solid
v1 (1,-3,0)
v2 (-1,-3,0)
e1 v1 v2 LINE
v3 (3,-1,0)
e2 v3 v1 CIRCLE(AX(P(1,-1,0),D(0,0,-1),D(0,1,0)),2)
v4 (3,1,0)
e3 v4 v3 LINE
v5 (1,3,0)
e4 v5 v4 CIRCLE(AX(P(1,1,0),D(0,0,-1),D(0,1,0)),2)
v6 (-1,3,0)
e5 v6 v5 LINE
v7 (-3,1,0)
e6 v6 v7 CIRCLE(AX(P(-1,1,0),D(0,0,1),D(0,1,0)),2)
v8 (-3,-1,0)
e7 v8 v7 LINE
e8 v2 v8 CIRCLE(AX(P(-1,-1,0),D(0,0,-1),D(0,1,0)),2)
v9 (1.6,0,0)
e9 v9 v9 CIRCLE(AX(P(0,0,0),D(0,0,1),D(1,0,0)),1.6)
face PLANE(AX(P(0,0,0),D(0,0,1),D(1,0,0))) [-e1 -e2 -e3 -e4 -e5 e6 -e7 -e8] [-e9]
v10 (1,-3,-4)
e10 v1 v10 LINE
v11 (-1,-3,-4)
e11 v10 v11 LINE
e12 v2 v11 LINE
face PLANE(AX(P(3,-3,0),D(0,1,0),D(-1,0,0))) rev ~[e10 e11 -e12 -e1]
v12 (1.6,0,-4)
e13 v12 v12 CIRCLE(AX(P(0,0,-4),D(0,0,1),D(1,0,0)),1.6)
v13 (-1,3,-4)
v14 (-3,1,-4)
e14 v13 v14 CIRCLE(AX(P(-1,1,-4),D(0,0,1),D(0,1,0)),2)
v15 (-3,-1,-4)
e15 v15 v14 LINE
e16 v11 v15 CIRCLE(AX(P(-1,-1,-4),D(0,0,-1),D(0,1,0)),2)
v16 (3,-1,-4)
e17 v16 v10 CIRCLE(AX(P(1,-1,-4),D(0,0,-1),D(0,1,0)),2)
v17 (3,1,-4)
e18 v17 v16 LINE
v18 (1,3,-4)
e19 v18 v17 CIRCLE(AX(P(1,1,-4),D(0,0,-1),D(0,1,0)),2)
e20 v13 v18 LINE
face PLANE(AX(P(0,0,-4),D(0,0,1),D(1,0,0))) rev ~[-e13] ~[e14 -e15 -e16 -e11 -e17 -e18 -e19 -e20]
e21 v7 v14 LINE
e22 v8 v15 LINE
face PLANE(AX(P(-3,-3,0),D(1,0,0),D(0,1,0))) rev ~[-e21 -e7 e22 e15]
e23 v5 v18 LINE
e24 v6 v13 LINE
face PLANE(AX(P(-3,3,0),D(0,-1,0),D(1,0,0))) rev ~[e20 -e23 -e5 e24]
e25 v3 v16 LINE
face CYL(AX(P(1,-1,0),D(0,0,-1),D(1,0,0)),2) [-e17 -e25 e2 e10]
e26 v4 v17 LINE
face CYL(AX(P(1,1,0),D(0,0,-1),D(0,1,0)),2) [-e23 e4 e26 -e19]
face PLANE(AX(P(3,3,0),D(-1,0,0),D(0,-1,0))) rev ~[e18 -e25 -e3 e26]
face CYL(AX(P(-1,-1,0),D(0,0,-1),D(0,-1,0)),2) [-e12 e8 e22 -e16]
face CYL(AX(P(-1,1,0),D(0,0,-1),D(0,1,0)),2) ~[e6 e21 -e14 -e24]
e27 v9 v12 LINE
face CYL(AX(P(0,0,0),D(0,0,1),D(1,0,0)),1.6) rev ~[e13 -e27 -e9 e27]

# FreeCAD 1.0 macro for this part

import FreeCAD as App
import Part
import Sketcher

V = App.Vector


def edges_at(feature, points):
    """Names of the edges that pass closest to the given points."""
    edges = feature.Shape.Edges
    near = lambda p: min(range(len(edges)), key=lambda i: edges[i].distToShape(Part.Vertex(*p))[0])
    return sorted({f"Edge{near(p) + 1}" for p in points})


def add_polygon(sketch, points):
    """Adds a closed chain of lines whose ends are joined by coincident constraints."""
    first, n = sketch.GeometryCount, len(points)
    for a, b in zip(points, points[1:] + points[:1]):
        sketch.addGeometry(Part.LineSegment(App.Vector(*a, 0), App.Vector(*b, 0)), False)
    for i in range(n):
        sketch.addConstraint(Sketcher.Constraint("Coincident", first + i, 2, first + (i + 1) % n, 1))

doc = App.newDocument("Part")
body = doc.addObject("PartDesign::Body", "Body")

sketch1 = doc.addObject("Sketcher::SketchObject", "Sketch")
body.addObject(sketch1)
sketch1.AttachmentSupport = (doc.XY_Plane, [""])
sketch1.MapMode = "FlatFace"
add_polygon(sketch1, [(3, 3), (-3, 3), (-3, -3), (3, -3)])
sketch1.addGeometry(Part.Circle(V(0, 0, 0), V(0, 0, 1), 1.6), False)
sketch1.addConstraint([
    Sketcher.Constraint("Horizontal", 0),
    Sketcher.Constraint("Vertical", 1),
    Sketcher.Constraint("Horizontal", 2),
    Sketcher.Constraint("Vertical", 3),
    Sketcher.Constraint("Coincident", 4, 3, -1, 1),
    Sketcher.Constraint("Symmetric", 0, 2, 2, 2, -1, 1),
    Sketcher.Constraint("Equal", 2, 1),
    Sketcher.Constraint("DistanceX", 0, 2, -1, 1, 3.0),
    Sketcher.Constraint("Diameter", 4, 3.2),
])
pad1 = doc.addObject("PartDesign::Pad", "Pad")
body.addObject(pad1)
pad1.Profile = sketch1
pad1.Length = 4
pad1.Reversed = True
doc.recompute()

fillet = doc.addObject("PartDesign::Fillet", "Fillet")
body.addObject(fillet)
fillet.Base = (pad1, edges_at(pad1, [
    (3, -3, -2),
    (-3, -3, -2),
    (-3, 3, -2),
    (3, 3, -2),
]))
fillet.Radius = 2

doc.recompute()
